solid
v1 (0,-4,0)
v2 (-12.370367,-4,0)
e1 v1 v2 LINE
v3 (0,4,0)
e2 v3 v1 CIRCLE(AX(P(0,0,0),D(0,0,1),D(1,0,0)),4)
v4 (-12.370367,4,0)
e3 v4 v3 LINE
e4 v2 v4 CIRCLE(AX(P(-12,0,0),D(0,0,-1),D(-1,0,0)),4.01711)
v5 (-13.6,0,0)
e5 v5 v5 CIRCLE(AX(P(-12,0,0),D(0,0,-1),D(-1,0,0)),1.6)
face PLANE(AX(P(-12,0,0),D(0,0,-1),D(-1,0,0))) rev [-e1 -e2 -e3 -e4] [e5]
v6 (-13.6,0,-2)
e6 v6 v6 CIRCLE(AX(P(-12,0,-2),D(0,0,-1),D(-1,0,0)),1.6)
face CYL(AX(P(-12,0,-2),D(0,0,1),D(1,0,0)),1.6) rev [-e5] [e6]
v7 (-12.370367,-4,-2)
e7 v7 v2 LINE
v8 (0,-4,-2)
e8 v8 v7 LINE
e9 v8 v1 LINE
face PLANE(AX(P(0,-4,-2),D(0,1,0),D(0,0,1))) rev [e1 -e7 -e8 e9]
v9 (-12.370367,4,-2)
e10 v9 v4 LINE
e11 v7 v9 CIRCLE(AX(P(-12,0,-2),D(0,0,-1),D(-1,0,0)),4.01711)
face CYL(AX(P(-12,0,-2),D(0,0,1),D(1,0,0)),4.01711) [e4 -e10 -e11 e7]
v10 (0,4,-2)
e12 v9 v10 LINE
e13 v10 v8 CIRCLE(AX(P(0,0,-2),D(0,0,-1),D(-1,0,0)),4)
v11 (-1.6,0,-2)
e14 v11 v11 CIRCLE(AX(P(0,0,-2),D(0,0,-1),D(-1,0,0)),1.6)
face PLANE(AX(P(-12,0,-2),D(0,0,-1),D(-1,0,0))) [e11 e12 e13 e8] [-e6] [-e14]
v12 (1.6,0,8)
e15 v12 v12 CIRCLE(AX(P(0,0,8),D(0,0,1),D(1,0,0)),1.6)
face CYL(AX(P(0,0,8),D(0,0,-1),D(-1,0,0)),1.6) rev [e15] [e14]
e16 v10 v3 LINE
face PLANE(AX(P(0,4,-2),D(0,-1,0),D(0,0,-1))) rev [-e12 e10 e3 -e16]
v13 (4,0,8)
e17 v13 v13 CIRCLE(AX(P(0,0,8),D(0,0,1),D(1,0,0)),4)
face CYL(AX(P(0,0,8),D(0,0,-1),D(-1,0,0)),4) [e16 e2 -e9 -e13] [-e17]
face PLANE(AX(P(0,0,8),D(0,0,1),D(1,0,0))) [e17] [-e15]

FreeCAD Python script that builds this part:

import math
import FreeCAD as App
import Part
import Sketcher

doc = App.newDocument("Part")
body = doc.addObject("PartDesign::Body", "Body")

# Sketch on XY plane
sketch1 = body.newObject("Sketcher::SketchObject", "Sketch")
sketch1.AttachmentSupport = (doc.getObject("XY_Plane"), [""])
sketch1.MapMode = "FlatFace"
sketch1.addGeometry([
    Part.Circle(App.Vector(0, 0, 0), App.Vector(0, 0, 1), 4),
    Part.Circle(App.Vector(0, 0, 0), App.Vector(0, 0, 1), 1.6),
], False)
sketch1.addConstraint([
    Sketcher.Constraint("Coincident", 0, 3, -1, 1),
    Sketcher.Constraint("Coincident", 1, 3, -1, 1),
    Sketcher.Constraint("Diameter", 0, 8.0),
    Sketcher.Constraint("Diameter", 1, 3.2),
])
pad1 = body.newObject("PartDesign::Pad", "Pad")
pad1.Profile = sketch1
pad1.Length = 8

# Sketch on XY plane
sketch2 = body.newObject("Sketcher::SketchObject", "Sketch001")
sketch2.AttachmentSupport = (doc.getObject("XY_Plane"), [""])
sketch2.MapMode = "FlatFace"
sketch2.AttachmentOffset = App.Placement(App.Vector(0, 0, -2), App.Rotation())
sketch2.addGeometry([
    Part.LineSegment(App.Vector(0, -4, 0), App.Vector(-12.370367, -4, 0)),  # 0
    Part.ArcOfCircle(Part.Circle(App.Vector(-12, 0, 0), App.Vector(0, 0, 1), 4.01711), math.radians(95.290028), math.radians(264.709972)),  # 1
    Part.LineSegment(App.Vector(-12.370367, 4, 0), App.Vector(0, 4, 0)),  # 2
    Part.ArcOfCircle(Part.Circle(App.Vector(0, 0, 0), App.Vector(0, 0, 1), 4), math.radians(-90), math.radians(90)),  # 3
    Part.Circle(App.Vector(0, 0, 0), App.Vector(0, 0, 1), 1.6),  # 4
    Part.Circle(App.Vector(-12, 0, 0), App.Vector(0, 0, 1), 1.6),  # 5
], False)
sketch2.addConstraint([
    Sketcher.Constraint("Coincident", 0, 2, 1, 2),
    Sketcher.Constraint("Coincident", 1, 1, 2, 1),
    Sketcher.Constraint("Tangent", 2, 2, 3, 2),
    Sketcher.Constraint("Tangent", 3, 1, 0, 1),
    Sketcher.Constraint("Horizontal", 0),
    Sketcher.Constraint("Horizontal", 2),
    Sketcher.Constraint("Coincident", 3, 3, -1, 1),
    Sketcher.Constraint("Coincident", 4, 3, -1, 1),
    Sketcher.Constraint("Coincident", 5, 3, 1, 3),
    Sketcher.Constraint("Equal", 4, 5),
    Sketcher.Constraint("PointOnObject", 1, 3, -1),
    Sketcher.Constraint("Radius", 3, 4.0),
    Sketcher.Constraint("Diameter", 4, 3.2),
    Sketcher.Constraint("DistanceX", 1, 3, -1, 1, 12.0),
    Sketcher.Constraint("Radius", 1, 4.01711),
])
pad2 = body.newObject("PartDesign::Pad", "Pad001")
pad2.Profile = sketch2
pad2.Length = 2

doc.recompute()
